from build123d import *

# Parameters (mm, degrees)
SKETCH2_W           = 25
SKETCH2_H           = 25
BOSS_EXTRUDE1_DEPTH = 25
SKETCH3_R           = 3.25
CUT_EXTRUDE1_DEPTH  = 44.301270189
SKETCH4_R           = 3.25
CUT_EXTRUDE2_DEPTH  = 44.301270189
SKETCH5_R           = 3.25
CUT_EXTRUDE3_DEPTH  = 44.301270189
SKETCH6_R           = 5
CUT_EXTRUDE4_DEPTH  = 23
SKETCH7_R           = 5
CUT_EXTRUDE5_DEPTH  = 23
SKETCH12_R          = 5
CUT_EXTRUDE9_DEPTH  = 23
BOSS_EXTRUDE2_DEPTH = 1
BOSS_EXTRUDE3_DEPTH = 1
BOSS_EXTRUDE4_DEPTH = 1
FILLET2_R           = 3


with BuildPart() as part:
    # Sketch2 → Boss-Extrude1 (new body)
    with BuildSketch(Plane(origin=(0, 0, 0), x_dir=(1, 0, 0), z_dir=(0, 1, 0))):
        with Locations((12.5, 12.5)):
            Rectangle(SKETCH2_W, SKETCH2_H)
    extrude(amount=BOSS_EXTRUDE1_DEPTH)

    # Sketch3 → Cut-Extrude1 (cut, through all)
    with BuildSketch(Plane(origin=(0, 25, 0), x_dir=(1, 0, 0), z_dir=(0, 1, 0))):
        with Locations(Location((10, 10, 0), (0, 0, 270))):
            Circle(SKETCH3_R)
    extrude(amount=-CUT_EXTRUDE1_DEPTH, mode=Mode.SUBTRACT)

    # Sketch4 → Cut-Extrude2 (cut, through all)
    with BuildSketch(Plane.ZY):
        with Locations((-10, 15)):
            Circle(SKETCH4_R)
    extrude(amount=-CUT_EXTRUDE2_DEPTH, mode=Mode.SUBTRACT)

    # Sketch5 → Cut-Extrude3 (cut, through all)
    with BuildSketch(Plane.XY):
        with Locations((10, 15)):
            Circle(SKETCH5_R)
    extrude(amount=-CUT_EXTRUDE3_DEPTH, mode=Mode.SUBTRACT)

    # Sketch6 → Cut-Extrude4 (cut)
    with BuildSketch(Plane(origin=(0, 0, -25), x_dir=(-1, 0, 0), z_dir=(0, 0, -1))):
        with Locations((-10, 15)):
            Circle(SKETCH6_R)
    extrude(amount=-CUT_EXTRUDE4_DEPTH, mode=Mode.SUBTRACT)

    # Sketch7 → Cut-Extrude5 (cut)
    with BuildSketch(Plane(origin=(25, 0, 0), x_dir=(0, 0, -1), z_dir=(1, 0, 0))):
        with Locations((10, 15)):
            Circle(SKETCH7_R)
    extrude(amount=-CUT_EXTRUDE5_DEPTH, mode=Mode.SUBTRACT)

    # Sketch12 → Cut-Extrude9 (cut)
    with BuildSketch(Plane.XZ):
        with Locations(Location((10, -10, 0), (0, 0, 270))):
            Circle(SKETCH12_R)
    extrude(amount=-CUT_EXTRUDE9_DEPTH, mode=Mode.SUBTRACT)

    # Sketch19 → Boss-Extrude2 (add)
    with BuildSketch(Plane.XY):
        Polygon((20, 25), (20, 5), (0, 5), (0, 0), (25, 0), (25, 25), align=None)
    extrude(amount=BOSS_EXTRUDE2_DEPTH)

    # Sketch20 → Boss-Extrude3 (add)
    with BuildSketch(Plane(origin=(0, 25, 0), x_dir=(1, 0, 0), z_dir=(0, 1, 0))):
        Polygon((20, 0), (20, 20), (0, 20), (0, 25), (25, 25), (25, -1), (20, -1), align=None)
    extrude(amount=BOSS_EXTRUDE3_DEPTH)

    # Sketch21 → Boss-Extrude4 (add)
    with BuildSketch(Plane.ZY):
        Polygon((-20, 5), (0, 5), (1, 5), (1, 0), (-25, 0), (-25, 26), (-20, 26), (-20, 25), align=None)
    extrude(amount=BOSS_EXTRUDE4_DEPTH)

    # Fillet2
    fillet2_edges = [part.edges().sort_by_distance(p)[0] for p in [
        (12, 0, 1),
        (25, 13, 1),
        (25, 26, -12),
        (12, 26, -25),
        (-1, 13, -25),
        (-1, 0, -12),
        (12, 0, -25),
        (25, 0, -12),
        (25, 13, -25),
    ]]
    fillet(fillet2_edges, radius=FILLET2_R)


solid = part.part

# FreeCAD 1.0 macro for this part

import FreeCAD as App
import Part
import Sketcher

V = App.Vector
Q = App.Units.Quantity


def edges_at(feature, points):
    """Names of the edges that pass closest to the given points."""
    edges = feature.Shape.Edges
    near = lambda p: min(range(len(edges)), key=lambda i: edges[i].distToShape(Part.Vertex(*p))[0])
    return sorted({f"Edge{near(p) + 1}" for p in points})


def add_polygon(sketch, points):
    """Adds a closed chain of lines whose ends are joined by coincident constraints."""
    first, n = sketch.GeometryCount, len(points)
    for a, b in zip(points, points[1:] + points[:1]):
        sketch.addGeometry(Part.LineSegment(App.Vector(*a, 0), App.Vector(*b, 0)), False)
    for i in range(n):
        sketch.addConstraint(Sketcher.Constraint("Coincident", first + i, 2, first + (i + 1) % n, 1))

doc = App.newDocument("Part")
body = doc.addObject("PartDesign::Body", "Body")

# Sketch on XZ plane
sketch1 = doc.addObject("Sketcher::SketchObject", "Sketch")
body.addObject(sketch1)
sketch1.AttachmentSupport = (doc.XZ_Plane, [""])
sketch1.MapMode = "FlatFace"
add_polygon(sketch1, [(0, -25), (0, 0), (25, 0), (25, -25)])  # lines 0-3
sketch1.addConstraint([
    Sketcher.Constraint("Vertical", 0),
    Sketcher.Constraint("Horizontal", 1),
    Sketcher.Constraint("Vertical", 2),
    Sketcher.Constraint("Horizontal", 3),
    Sketcher.Constraint("Coincident", 0, 2, -1, 1),
    Sketcher.Constraint("Equal", 3, 0),
    Sketcher.Constraint("DistanceX", 1, 1, 1, 2, Q("25 mm")),
])
pad1 = doc.addObject("PartDesign::Pad", "Pad")
body.addObject(pad1)
pad1.Profile = sketch1
pad1.Length = 25
pad1.Reversed = True

# Sketch on XZ plane
sketch2 = doc.addObject("Sketcher::SketchObject", "Sketch001")
body.addObject(sketch2)
sketch2.AttachmentSupport = (doc.XZ_Plane, [""])
sketch2.MapMode = "FlatFace"
sketch2.AttachmentOffset = App.Placement(V(0, 0, -25), App.Rotation())
sketch2.addGeometry(Part.Circle(V(10, -10, 0), V(0, 0, 1), 3.2), False)
sketch2.addConstraint([
    Sketcher.Constraint("Diameter", 0, Q("6.5 mm")),
    Sketcher.Constraint("DistanceX", -1, 1, 0, 3, Q("10 mm")),
    Sketcher.Constraint("DistanceY", 0, 3, -1, 1, Q("10 mm")),
])
pocket1 = doc.addObject("PartDesign::Pocket", "Pocket")
body.addObject(pocket1)
pocket1.Profile = sketch2
pocket1.Type = "ThroughAll"
pocket1.Reversed = True

# Sketch on YZ plane
sketch3 = doc.addObject("Sketcher::SketchObject", "Sketch002")
body.addObject(sketch3)
sketch3.AttachmentSupport = (doc.YZ_Plane, [""])
sketch3.MapMode = "FlatFace"
sketch3.addGeometry(Part.Circle(V(15, -10, 0), V(0, 0, 1), 3.2), False)
sketch3.addConstraint([
    Sketcher.Constraint("Diameter", 0, Q("6.5 mm")),
    Sketcher.Constraint("DistanceX", -1, 1, 0, 3, Q("15 mm")),
    Sketcher.Constraint("DistanceY", 0, 3, -1, 1, Q("10 mm")),
])
pocket2 = doc.addObject("PartDesign::Pocket", "Pocket001")
body.addObject(pocket2)
pocket2.Profile = sketch3
pocket2.Type = "ThroughAll"
pocket2.Reversed = True

# Sketch on XY plane
sketch4 = doc.addObject("Sketcher::SketchObject", "Sketch003")
body.addObject(sketch4)
sketch4.AttachmentSupport = (doc.XY_Plane, [""])
sketch4.MapMode = "FlatFace"
sketch4.addGeometry(Part.Circle(V(10, 15, 0), V(0, 0, 1), 3.2), False)
sketch4.addConstraint([
    Sketcher.Constraint("Diameter", 0, Q("6.5 mm")),
    Sketcher.Constraint("DistanceX", -1, 1, 0, 3, Q("10 mm")),
    Sketcher.Constraint("DistanceY", -1, 1, 0, 3, Q("15 mm")),
])
pocket3 = doc.addObject("PartDesign::Pocket", "Pocket002")
body.addObject(pocket3)
pocket3.Profile = sketch4
pocket3.Type = "ThroughAll"

# Sketch on XY plane
sketch5 = doc.addObject("Sketcher::SketchObject", "Sketch004")
body.addObject(sketch5)
sketch5.AttachmentSupport = (doc.XY_Plane, [""])
sketch5.MapMode = "FlatFace"
sketch5.AttachmentOffset = App.Placement(V(0, 0, -25), App.Rotation())
sketch5.addGeometry(Part.Circle(V(10, 15, 0), V(0, 0, 1), 5), False)
sketch5.addConstraint([
    Sketcher.Constraint("Diameter", 0, Q("10 mm")),
    Sketcher.Constraint("DistanceX", -1, 1, 0, 3, Q("10 mm")),
    Sketcher.Constraint("DistanceY", -1, 1, 0, 3, Q("15 mm")),
])
pocket4 = doc.addObject("PartDesign::Pocket", "Pocket003")
body.addObject(pocket4)
pocket4.Profile = sketch5
pocket4.Length = 23
pocket4.Reversed = True

# Sketch on YZ plane
sketch6 = doc.addObject("Sketcher::SketchObject", "Sketch005")
body.addObject(sketch6)
sketch6.AttachmentSupport = (doc.YZ_Plane, [""])
sketch6.MapMode = "FlatFace"
sketch6.AttachmentOffset = App.Placement(V(0, 0, 25), App.Rotation())
sketch6.addGeometry(Part.Circle(V(15, -10, 0), V(0, 0, 1), 5), False)
sketch6.addConstraint([
    Sketcher.Constraint("Diameter", 0, Q("10 mm")),
    Sketcher.Constraint("DistanceX", -1, 1, 0, 3, Q("15 mm")),
    Sketcher.Constraint("DistanceY", 0, 3, -1, 1, Q("10 mm")),
])
pocket5 = doc.addObject("PartDesign::Pocket", "Pocket004")
body.addObject(pocket5)
pocket5.Profile = sketch6
pocket5.Length = 23

# Sketch on XZ plane
sketch7 = doc.addObject("Sketcher::SketchObject", "Sketch006")
body.addObject(sketch7)
sketch7.AttachmentSupport = (doc.XZ_Plane, [""])
sketch7.MapMode = "FlatFace"
sketch7.addGeometry(Part.Circle(V(10, -10, 0), V(0, 0, 1), 5), False)
sketch7.addConstraint([
    Sketcher.Constraint("Diameter", 0, Q("10 mm")),
    Sketcher.Constraint("DistanceX", -1, 1, 0, 3, Q("10 mm")),
    Sketcher.Constraint("DistanceY", 0, 3, -1, 1, Q("10 mm")),
])
pocket6 = doc.addObject("PartDesign::Pocket", "Pocket005")
body.addObject(pocket6)
pocket6.Profile = sketch7
pocket6.Length = 23

# Sketch on XY plane
sketch8 = doc.addObject("Sketcher::SketchObject", "Sketch007")
body.addObject(sketch8)
sketch8.AttachmentSupport = (doc.XY_Plane, [""])
sketch8.MapMode = "FlatFace"
add_polygon(sketch8, [(20, 25), (20, 5), (0, 5), (0, 0), (25, 0), (25, 25)])  # lines 0-5
sketch8.addConstraint([
    Sketcher.Constraint("Vertical", 0),
    Sketcher.Constraint("Horizontal", 1),
    Sketcher.Constraint("Vertical", 2),
    Sketcher.Constraint("Horizontal", 3),
    Sketcher.Constraint("Vertical", 4),
    Sketcher.Constraint("Horizontal", 5),
    Sketcher.Constraint("Coincident", 2, 2, -1, 1),
    Sketcher.Constraint("Equal", 1, 0),
    Sketcher.Constraint("Equal", 5, 2),
    Sketcher.Constraint("DistanceX", 1, 2, 1, 1, Q("20 mm")),
    Sketcher.Constraint("DistanceX", 3, 1, 3, 2, Q("25 mm")),
])
pad2 = doc.addObject("PartDesign::Pad", "Pad001")
body.addObject(pad2)
pad2.Profile = sketch8
pad2.Length = 1

# Sketch on XZ plane
sketch9 = doc.addObject("Sketcher::SketchObject", "Sketch008")
body.addObject(sketch9)
sketch9.AttachmentSupport = (doc.XZ_Plane, [""])
sketch9.MapMode = "FlatFace"
sketch9.AttachmentOffset = App.Placement(V(0, 0, -25), App.Rotation())
add_polygon(sketch9, [(20, -20), (20, 1), (25, 1), (25, -25), (0, -25), (0, -20)])  # lines 0-5
sketch9.addConstraint([
    Sketcher.Constraint("Vertical", 0),
    Sketcher.Constraint("Horizontal", 1),
    Sketcher.Constraint("Vertical", 2),
    Sketcher.Constraint("Horizontal", 3),
    Sketcher.Constraint("Vertical", 4),
    Sketcher.Constraint("Horizontal", 5),
    Sketcher.Constraint("PointOnObject", 3, 2, -2),
    Sketcher.Constraint("Equal", 1, 4),
    Sketcher.Constraint("DistanceX", 1, 1, 1, 2, Q("5 mm")),
    Sketcher.Constraint("DistanceX", 3, 2, 3, 1, Q("25 mm")),
    Sketcher.Constraint("DistanceY", 0, 1, 0, 2, Q("21 mm")),
    Sketcher.Constraint("DistanceY", -1, 1, 0, 2, Q("1 mm")),
])
pad3 = doc.addObject("PartDesign::Pad", "Pad002")
body.addObject(pad3)
pad3.Profile = sketch9
pad3.Length = 1
pad3.Reversed = True

# Sketch on YZ plane
sketch10 = doc.addObject("Sketcher::SketchObject", "Sketch009")
body.addObject(sketch10)
sketch10.AttachmentSupport = (doc.YZ_Plane, [""])
sketch10.MapMode = "FlatFace"
add_polygon(sketch10, [(5, 1), (5, -20), (26, -20), (26, -25), (0, -25), (0, 1)])  # lines 0-5
sketch10.addConstraint([
    Sketcher.Constraint("Vertical", 0),
    Sketcher.Constraint("Horizontal", 1),
    Sketcher.Constraint("Vertical", 2),
    Sketcher.Constraint("Horizontal", 3),
    Sketcher.Constraint("Vertical", 4),
    Sketcher.Constraint("Horizontal", 5),
    Sketcher.Constraint("PointOnObject", 3, 2, -2),
    Sketcher.Constraint("Equal", 1, 0),
    Sketcher.Constraint("Equal", 5, 2),
    Sketcher.Constraint("DistanceX", 1, 1, 1, 2, Q("21 mm")),
    Sketcher.Constraint("DistanceX", 3, 2, 3, 1, Q("26 mm")),
    Sketcher.Constraint("DistanceY", 0, 2, -1, 1, Q("20 mm")),
])
pad4 = doc.addObject("PartDesign::Pad", "Pad003")
body.addObject(pad4)
pad4.Profile = sketch10
pad4.Length = 1
pad4.Reversed = True
doc.recompute()

fillet = doc.addObject("PartDesign::Fillet", "Fillet")
body.addObject(fillet)
fillet.Base = (pad4, edges_at(pad4, [
    (12, 0, 1),
    (25, 13, 1),
    (25, 26, -12),
    (12, 26, -25),
    (-1, 13, -25),
    (-1, 0, -12),
    (12, 0, -25),
    (25, 0, -12),
    (25, 13, -25),
]))
fillet.Radius = 3

doc.recompute()
